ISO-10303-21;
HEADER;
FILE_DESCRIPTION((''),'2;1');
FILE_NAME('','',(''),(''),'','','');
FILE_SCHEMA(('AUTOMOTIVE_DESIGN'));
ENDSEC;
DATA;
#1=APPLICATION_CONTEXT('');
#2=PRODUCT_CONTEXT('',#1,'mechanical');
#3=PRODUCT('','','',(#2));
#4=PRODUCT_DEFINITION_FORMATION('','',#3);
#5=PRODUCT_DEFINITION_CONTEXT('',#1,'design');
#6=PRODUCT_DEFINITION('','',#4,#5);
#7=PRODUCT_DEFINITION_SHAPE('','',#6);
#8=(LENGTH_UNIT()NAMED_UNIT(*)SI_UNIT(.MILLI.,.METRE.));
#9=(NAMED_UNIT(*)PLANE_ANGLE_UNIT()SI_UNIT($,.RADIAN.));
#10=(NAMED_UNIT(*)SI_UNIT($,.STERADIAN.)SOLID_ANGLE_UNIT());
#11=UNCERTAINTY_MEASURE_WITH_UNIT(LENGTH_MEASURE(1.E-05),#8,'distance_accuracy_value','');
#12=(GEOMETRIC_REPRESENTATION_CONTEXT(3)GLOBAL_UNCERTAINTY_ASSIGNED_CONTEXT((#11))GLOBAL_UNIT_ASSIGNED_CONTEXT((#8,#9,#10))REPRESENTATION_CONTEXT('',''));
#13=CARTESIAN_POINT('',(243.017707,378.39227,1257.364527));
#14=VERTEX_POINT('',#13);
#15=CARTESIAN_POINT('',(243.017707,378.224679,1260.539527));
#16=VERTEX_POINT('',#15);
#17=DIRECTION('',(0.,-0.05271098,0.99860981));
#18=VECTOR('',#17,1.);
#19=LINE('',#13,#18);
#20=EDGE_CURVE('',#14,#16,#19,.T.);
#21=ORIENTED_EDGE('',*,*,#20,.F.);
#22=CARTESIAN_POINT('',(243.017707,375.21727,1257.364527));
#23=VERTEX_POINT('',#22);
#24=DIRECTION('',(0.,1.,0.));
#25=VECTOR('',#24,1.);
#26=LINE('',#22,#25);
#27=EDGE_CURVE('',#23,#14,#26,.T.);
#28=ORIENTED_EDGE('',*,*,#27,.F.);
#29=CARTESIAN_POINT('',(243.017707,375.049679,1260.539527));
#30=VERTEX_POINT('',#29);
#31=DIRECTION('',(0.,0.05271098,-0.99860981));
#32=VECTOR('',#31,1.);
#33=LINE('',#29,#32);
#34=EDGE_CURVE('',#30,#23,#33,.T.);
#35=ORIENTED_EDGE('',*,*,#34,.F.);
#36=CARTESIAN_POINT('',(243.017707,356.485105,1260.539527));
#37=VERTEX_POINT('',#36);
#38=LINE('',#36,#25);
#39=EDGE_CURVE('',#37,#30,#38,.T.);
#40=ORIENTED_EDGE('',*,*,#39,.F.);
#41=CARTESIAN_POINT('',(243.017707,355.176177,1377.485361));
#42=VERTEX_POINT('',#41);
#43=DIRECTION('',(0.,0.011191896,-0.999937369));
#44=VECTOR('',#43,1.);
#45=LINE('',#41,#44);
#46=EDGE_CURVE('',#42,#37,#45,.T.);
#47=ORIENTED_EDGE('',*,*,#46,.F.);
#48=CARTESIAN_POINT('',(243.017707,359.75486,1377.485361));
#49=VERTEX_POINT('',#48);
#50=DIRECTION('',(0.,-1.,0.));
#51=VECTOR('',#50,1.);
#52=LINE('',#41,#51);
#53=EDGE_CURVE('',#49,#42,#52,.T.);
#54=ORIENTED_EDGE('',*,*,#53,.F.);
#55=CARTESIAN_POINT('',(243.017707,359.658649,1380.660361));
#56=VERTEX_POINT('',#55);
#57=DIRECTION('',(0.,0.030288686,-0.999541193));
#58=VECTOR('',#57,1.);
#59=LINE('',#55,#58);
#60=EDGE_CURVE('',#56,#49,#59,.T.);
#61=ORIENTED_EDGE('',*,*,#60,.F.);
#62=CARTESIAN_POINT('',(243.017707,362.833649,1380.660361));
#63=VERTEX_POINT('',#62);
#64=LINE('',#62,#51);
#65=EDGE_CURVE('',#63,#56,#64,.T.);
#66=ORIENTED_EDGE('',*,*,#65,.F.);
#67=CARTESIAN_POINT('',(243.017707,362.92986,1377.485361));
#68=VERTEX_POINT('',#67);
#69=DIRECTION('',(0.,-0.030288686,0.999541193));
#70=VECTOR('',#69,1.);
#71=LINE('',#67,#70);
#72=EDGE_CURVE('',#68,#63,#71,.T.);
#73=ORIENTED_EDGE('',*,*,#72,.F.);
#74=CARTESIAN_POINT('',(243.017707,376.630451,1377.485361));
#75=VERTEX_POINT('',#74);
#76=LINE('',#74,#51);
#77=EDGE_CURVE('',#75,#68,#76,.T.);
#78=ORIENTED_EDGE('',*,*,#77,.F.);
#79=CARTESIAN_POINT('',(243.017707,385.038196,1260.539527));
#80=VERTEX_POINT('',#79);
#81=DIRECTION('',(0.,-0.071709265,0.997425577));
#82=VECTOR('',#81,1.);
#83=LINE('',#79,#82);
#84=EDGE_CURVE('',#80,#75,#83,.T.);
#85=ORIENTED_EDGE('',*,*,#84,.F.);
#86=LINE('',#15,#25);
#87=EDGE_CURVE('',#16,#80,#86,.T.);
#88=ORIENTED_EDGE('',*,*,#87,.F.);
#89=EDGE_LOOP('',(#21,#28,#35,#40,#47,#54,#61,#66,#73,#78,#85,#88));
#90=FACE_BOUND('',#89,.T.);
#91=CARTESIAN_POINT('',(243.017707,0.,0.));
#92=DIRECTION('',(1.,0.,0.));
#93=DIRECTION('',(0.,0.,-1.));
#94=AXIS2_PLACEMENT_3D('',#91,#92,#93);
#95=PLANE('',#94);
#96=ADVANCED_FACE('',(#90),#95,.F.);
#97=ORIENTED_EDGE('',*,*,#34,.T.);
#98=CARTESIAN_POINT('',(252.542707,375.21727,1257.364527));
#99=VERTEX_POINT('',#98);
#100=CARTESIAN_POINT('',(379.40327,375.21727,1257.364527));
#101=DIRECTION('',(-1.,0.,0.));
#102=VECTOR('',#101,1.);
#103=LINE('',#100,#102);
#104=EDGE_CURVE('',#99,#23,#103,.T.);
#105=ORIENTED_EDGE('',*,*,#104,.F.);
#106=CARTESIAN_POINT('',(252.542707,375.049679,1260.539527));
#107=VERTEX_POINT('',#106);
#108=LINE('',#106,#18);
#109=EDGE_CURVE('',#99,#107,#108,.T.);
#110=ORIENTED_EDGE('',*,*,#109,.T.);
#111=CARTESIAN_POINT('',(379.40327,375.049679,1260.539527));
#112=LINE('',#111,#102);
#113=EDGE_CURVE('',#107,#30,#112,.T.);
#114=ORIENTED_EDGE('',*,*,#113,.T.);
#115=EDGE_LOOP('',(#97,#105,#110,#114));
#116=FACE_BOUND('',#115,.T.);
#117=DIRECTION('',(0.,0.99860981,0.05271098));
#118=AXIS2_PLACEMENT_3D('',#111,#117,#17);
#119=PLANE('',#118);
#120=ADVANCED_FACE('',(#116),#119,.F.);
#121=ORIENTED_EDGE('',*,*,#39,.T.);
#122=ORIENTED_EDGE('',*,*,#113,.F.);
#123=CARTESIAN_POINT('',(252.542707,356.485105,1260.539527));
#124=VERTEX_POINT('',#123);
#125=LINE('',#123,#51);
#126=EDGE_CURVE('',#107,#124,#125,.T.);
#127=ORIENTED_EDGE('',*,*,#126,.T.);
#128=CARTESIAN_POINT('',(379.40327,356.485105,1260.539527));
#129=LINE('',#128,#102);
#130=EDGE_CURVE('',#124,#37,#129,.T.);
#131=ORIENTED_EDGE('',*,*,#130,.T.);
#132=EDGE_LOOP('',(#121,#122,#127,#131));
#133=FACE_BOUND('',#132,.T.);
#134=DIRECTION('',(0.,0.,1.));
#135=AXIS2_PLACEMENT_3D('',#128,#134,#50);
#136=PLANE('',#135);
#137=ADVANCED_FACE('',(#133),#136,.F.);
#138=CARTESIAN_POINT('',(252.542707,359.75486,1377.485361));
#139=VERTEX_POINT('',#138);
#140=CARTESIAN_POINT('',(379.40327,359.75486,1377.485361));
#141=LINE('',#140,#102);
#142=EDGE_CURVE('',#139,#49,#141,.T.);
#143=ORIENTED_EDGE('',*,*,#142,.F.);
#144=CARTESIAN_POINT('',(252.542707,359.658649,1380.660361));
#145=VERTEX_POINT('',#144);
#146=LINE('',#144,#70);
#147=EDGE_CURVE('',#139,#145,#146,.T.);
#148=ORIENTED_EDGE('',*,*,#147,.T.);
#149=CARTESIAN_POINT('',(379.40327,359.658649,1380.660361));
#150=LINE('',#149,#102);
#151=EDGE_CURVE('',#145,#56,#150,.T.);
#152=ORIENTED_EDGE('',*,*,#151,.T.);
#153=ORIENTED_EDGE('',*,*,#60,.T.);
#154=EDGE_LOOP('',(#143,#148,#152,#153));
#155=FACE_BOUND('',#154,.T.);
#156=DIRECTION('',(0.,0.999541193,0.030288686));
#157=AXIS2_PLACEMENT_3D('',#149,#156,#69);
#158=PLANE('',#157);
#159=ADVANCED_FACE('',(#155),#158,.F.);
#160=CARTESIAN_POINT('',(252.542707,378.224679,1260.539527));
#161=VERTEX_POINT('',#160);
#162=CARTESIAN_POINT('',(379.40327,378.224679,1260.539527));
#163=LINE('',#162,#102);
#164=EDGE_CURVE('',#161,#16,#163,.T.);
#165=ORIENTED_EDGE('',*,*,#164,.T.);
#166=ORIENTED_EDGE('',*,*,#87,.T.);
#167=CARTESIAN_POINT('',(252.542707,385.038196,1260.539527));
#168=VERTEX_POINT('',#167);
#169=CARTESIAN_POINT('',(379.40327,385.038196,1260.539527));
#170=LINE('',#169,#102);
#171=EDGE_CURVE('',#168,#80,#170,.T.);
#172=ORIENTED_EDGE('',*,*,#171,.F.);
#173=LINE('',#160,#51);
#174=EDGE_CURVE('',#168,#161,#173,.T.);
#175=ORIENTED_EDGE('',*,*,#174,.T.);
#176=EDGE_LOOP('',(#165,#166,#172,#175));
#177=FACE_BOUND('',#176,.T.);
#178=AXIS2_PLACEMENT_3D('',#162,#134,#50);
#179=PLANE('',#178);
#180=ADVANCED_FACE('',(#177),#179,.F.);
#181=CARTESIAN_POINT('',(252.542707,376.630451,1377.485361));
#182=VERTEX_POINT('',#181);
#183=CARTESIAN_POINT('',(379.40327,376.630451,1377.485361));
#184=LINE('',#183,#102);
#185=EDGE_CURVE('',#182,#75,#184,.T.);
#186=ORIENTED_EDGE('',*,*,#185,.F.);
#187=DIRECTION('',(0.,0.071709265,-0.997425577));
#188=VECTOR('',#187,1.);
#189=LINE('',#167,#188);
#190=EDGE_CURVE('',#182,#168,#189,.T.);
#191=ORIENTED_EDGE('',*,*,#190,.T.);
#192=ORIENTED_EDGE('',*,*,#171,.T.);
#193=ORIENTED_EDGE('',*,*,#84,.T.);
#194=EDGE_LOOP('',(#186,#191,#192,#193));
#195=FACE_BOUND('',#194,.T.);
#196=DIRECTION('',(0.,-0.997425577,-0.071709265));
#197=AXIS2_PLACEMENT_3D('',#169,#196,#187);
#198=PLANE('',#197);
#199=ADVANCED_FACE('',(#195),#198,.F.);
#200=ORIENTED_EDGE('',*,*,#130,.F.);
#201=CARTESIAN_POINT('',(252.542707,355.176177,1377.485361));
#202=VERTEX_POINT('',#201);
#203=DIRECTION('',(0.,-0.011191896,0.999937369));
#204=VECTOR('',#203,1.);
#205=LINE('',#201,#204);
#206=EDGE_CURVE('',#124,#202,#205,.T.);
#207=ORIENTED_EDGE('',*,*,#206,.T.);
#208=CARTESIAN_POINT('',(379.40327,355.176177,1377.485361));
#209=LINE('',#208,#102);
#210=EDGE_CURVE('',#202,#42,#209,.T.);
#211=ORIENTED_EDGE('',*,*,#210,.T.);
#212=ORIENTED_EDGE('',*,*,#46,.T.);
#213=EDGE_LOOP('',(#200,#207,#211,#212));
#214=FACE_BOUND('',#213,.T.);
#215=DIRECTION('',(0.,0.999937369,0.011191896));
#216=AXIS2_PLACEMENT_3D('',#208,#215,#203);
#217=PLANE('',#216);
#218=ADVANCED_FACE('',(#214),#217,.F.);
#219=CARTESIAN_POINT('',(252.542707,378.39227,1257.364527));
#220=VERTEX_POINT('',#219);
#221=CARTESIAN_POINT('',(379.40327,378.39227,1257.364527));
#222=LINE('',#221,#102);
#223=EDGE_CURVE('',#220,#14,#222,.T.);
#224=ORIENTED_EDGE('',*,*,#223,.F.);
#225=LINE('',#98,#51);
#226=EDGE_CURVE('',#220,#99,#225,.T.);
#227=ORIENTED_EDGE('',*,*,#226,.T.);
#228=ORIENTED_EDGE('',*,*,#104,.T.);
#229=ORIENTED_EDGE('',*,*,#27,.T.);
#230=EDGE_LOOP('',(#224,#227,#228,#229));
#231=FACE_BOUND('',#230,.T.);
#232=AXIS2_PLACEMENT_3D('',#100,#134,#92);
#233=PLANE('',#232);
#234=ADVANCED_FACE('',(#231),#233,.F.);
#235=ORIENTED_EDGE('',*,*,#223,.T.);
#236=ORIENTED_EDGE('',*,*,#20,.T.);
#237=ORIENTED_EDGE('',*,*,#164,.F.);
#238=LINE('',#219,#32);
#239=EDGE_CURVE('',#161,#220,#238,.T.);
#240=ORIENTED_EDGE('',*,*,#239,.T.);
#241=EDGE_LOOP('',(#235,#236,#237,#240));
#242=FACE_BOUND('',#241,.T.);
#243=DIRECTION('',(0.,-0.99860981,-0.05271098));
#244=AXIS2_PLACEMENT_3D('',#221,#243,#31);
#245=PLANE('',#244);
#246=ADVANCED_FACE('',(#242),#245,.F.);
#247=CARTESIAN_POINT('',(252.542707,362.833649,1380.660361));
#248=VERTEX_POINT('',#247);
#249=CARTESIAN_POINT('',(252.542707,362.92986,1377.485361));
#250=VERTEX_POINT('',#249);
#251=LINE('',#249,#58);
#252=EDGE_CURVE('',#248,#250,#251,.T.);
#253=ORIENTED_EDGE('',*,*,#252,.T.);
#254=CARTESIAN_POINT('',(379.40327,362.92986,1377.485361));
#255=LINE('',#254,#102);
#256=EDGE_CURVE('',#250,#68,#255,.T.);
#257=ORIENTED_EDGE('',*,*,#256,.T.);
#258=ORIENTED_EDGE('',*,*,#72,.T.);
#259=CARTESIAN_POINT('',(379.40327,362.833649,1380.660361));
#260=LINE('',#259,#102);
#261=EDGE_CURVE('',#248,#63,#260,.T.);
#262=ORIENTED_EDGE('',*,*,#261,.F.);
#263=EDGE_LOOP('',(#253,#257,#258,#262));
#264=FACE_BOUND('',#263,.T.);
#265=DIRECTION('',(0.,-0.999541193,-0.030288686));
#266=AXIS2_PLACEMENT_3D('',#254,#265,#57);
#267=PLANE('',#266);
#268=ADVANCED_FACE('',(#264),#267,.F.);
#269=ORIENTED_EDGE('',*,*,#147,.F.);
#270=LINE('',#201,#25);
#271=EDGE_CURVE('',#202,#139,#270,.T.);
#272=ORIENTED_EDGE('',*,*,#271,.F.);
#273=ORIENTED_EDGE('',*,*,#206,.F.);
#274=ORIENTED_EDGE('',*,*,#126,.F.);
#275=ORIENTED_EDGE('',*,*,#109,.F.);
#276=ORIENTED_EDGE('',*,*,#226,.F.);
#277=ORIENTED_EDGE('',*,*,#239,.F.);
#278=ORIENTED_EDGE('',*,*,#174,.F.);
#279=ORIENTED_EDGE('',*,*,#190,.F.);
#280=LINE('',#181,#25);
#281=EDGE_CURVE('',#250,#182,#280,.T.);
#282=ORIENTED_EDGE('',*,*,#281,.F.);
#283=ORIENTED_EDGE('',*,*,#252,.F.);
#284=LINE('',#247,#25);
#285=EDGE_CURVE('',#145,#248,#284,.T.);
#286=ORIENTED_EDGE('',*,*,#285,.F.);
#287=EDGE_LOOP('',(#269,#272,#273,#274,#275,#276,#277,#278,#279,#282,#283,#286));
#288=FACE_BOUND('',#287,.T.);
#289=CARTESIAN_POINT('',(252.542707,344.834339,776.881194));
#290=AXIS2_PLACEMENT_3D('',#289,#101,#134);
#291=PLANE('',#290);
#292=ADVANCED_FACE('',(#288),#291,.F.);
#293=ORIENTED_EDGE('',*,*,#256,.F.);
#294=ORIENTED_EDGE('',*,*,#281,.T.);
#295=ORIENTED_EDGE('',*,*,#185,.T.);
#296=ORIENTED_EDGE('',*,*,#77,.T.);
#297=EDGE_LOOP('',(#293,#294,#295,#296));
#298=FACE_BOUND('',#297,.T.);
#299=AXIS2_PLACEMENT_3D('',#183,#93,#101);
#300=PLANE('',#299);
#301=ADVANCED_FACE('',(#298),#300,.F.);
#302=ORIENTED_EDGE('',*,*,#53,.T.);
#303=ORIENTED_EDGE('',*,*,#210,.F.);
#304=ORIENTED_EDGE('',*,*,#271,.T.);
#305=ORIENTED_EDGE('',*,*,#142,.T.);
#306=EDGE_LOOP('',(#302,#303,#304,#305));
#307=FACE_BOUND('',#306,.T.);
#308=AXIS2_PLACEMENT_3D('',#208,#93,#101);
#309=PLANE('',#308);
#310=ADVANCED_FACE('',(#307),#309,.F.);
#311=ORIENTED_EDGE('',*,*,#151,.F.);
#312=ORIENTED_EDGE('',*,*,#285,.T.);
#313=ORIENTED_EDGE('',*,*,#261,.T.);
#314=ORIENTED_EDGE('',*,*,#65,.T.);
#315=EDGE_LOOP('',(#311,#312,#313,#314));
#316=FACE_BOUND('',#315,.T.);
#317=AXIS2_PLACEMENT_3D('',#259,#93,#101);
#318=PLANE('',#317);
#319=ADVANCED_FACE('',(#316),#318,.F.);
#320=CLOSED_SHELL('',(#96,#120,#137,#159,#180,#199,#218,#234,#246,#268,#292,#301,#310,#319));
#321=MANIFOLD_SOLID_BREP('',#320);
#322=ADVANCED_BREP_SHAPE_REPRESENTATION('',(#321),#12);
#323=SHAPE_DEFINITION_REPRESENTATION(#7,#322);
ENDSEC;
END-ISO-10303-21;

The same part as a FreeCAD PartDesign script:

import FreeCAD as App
import Part
import Sketcher

V = App.Vector
Q = App.Units.Quantity


def add_polygon(sketch, points):
    """Adds a closed chain of lines whose ends are joined by coincident constraints."""
    first, n = sketch.GeometryCount, len(points)
    for a, b in zip(points, points[1:] + points[:1]):
        sketch.addGeometry(Part.LineSegment(App.Vector(*a, 0), App.Vector(*b, 0)), False)
    for i in range(n):
        sketch.addConstraint(Sketcher.Constraint("Coincident", first + i, 2, first + (i + 1) % n, 1))

doc = App.newDocument("Part")
body = doc.addObject("PartDesign::Body", "Body")

# Sketch on YZ plane
sketch1 = body.newObject("Sketcher::SketchObject", "Sketch")
sketch1.AttachmentSupport = (doc.getObject("YZ_Plane"), [""])
sketch1.MapMode = "FlatFace"
sketch1.AttachmentOffset = App.Placement(V(0, 0, 243.017707), App.Rotation())
add_polygon(sketch1, [(362.8, 1380.7), (359.7, 1380.7), (359.8, 1377.5), (355.2, 1377.5), (356.5, 1260.5), (375, 1260.5), (375.2, 1257.4), (378.4, 1257.4), (378.2, 1260.5), (385, 1260.5), (376.6, 1377.5), (362.9, 1377.5)])  # lines 0-11
sketch1.addConstraint([
    Sketcher.Constraint("Horizontal", 0),
    Sketcher.Constraint("Horizontal", 2),
    Sketcher.Constraint("Horizontal", 4),
    Sketcher.Constraint("Horizontal", 6),
    Sketcher.Constraint("Horizontal", 8),
    Sketcher.Constraint("Horizontal", 10),
    Sketcher.Constraint("Parallel", 5, 7),
    Sketcher.Constraint("Parallel", 1, 11),
    Sketcher.Constraint("Horizontal", 4, 2, 7, 2),
    Sketcher.Constraint("Horizontal", 2, 2, 9, 2),
    Sketcher.Constraint("Equal", 0, 6),
    Sketcher.Constraint("DistanceX", 0, 2, 0, 1, Q("0.125 in")),
    Sketcher.Constraint("DistanceY", 1, 2, 0, 2, Q("0.125 in")),
    Sketcher.Constraint("DistanceY", 5, 2, 4, 2, Q("0.125 in")),
    Sketcher.Constraint("DistanceX", 10, 2, 10, 1, Q("13.700591 mm")),
    Sketcher.Constraint("DistanceX", 0, 2, 9, 2, Q("16.971802 mm")),
    Sketcher.Constraint("Distance", 3, Q("116.953158 mm")),
    Sketcher.Constraint("Distance", 5, Q("3.17942 mm")),
    Sketcher.Constraint("Distance", 9, Q("117.247678 mm")),
    Sketcher.Constraint("DistanceX", 2, 2, 2, 1, Q("4.578682 mm")),
    Sketcher.Constraint("DistanceX", 4, 1, 4, 2, Q("18.564574 mm")),
    Sketcher.Constraint("DistanceX", 8, 1, 8, 2, Q("6.813516 mm")),
    Sketcher.Constraint("DistanceX", -1, 1, 0, 2, Q("359.658649 mm")),
    Sketcher.Constraint("DistanceY", -1, 1, 0, 2, Q("1380.660361 mm")),
])
pad1 = body.newObject("PartDesign::Pad", "Pad")
pad1.Profile = sketch1
pad1.Length = Q("0.375 in")

doc.recompute()
